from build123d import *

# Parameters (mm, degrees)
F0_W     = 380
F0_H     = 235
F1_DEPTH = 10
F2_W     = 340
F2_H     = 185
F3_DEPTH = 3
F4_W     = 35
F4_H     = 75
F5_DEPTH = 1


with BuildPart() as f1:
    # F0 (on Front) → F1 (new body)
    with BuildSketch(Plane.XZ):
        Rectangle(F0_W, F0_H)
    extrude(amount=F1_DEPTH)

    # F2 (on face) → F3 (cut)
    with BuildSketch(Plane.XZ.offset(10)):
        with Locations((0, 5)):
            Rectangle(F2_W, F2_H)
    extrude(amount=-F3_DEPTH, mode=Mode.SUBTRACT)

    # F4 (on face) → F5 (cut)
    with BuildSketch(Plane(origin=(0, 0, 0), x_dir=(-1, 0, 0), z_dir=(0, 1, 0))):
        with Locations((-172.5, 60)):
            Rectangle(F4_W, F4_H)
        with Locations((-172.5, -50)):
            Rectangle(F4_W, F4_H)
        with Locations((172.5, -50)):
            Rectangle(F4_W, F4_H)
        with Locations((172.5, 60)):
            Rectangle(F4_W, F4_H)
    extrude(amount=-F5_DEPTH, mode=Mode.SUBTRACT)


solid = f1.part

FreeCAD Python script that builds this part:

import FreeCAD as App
import Part
import Sketcher
from FreeCAD import Vector
Q = App.Units.Quantity


def add_polygon(sketch, points):
    """Adds a closed chain of lines whose ends are joined by coincident constraints."""
    first, n = sketch.GeometryCount, len(points)
    for a, b in zip(points, points[1:] + points[:1]):
        sketch.addGeometry(Part.LineSegment(App.Vector(*a, 0), App.Vector(*b, 0)), False)
    for i in range(n):
        sketch.addConstraint(Sketcher.Constraint("Coincident", first + i, 2, first + (i + 1) % n, 1))

doc = App.newDocument("Part")
body = doc.addObject("PartDesign::Body", "Body")

# Sketch on XZ plane
sketch1 = doc.addObject("Sketcher::SketchObject", "Sketch")
body.addObject(sketch1)
sketch1.AttachmentSupport = (doc.XZ_Plane, [""])
sketch1.MapMode = "FlatFace"
add_polygon(sketch1, [(-190, 118), (-190, -118), (190, -118), (190, 118)])  # lines 0-3
sketch1.addConstraint([
    Sketcher.Constraint("Vertical", 0),
    Sketcher.Constraint("Horizontal", 1),
    Sketcher.Constraint("Vertical", 2),
    Sketcher.Constraint("Horizontal", 3),
    Sketcher.Constraint("Symmetric", 0, 2, 2, 2, -1, 1),
    Sketcher.Constraint("DistanceX", 1, 1, 1, 2, Q("380 mm")),
    Sketcher.Constraint("DistanceY", 0, 2, 0, 1, Q("235 mm")),
])
pad1 = doc.addObject("PartDesign::Pad", "Pad")
body.addObject(pad1)
pad1.Profile = sketch1
pad1.Length = 10

# Sketch on XZ plane
sketch2 = doc.addObject("Sketcher::SketchObject", "Sketch001")
body.addObject(sketch2)
sketch2.AttachmentSupport = (doc.XZ_Plane, [""])
sketch2.MapMode = "FlatFace"
sketch2.AttachmentOffset = App.Placement(Vector(0, 0, 10), App.Rotation())
add_polygon(sketch2, [(-170, 98), (-170, -88), (170, -88), (170, 98)])  # lines 0-3
sketch2.addConstraint([
    Sketcher.Constraint("Vertical", 0),
    Sketcher.Constraint("Horizontal", 1),
    Sketcher.Constraint("Vertical", 2),
    Sketcher.Constraint("Horizontal", 3),
    Sketcher.Constraint("DistanceX", 1, 1, 1, 2, Q("340 mm")),
    Sketcher.Constraint("DistanceY", 0, 2, 0, 1, Q("185 mm")),
    Sketcher.Constraint("DistanceX", 0, 2, -1, 1, Q("170 mm")),
    Sketcher.Constraint("DistanceY", 0, 2, -1, 1, Q("87.5 mm")),
])
pocket1 = doc.addObject("PartDesign::Pocket", "Pocket")
body.addObject(pocket1)
pocket1.Profile = sketch2
pocket1.Length = 3

# Sketch on XZ plane
sketch3 = doc.addObject("Sketcher::SketchObject", "Sketch002")
body.addObject(sketch3)
sketch3.AttachmentSupport = (doc.XZ_Plane, [""])
sketch3.MapMode = "FlatFace"
add_polygon(sketch3, [(190, 98), (190, 22), (155, 22), (155, 98)])  # lines 0-3
add_polygon(sketch3, [(190, -12), (190, -88), (155, -88), (155, -12)])  # lines 4-7
add_polygon(sketch3, [(-155, -12), (-155, -88), (-190, -88), (-190, -12)])  # lines 8-11
add_polygon(sketch3, [(-155, 98), (-155, 22), (-190, 22), (-190, 98)])  # lines 12-15
sketch3.addConstraint([
    Sketcher.Constraint("Vertical", 0),
    Sketcher.Constraint("Horizontal", 1),
    Sketcher.Constraint("Vertical", 2),
    Sketcher.Constraint("Horizontal", 3),
    Sketcher.Constraint("Vertical", 4),
    Sketcher.Constraint("Horizontal", 5),
    Sketcher.Constraint("Vertical", 6),
    Sketcher.Constraint("Horizontal", 7),
    Sketcher.Constraint("Vertical", 8),
    Sketcher.Constraint("Horizontal", 9),
    Sketcher.Constraint("Vertical", 10),
    Sketcher.Constraint("Horizontal", 11),
    Sketcher.Constraint("Vertical", 12),
    Sketcher.Constraint("Horizontal", 13),
    Sketcher.Constraint("Vertical", 14),
    Sketcher.Constraint("Horizontal", 15),
    Sketcher.Constraint("Symmetric", 5, 2, 8, 2, -2),
    Sketcher.Constraint("Symmetric", 7, 2, 10, 2, -2),
    Sketcher.Constraint("Symmetric", 1, 2, 12, 2, -2),
    Sketcher.Constraint("Symmetric", 3, 2, 14, 2, -2),
    Sketcher.Constraint("Vertical", 3, 2, 4, 2),
    Sketcher.Constraint("Vertical", 2, 2, 5, 2),
    Sketcher.Constraint("Equal", 2, 4),
    Sketcher.Constraint("DistanceX", 1, 2, 1, 1, Q("35 mm")),
    Sketcher.Constraint("DistanceY", 0, 2, 0, 1, Q("75 mm")),
    Sketcher.Constraint("DistanceX", -1, 1, 0, 2, Q("190 mm")),
    Sketcher.Constraint("DistanceY", 4, 2, 0, 2, Q("110 mm")),
    Sketcher.Constraint("DistanceY", -1, 1, 0, 2, Q("22.5 mm")),
])
pocket2 = doc.addObject("PartDesign::Pocket", "Pocket001")
body.addObject(pocket2)
pocket2.Profile = sketch3
pocket2.Length = 1
pocket2.Reversed = True

doc.recompute()
